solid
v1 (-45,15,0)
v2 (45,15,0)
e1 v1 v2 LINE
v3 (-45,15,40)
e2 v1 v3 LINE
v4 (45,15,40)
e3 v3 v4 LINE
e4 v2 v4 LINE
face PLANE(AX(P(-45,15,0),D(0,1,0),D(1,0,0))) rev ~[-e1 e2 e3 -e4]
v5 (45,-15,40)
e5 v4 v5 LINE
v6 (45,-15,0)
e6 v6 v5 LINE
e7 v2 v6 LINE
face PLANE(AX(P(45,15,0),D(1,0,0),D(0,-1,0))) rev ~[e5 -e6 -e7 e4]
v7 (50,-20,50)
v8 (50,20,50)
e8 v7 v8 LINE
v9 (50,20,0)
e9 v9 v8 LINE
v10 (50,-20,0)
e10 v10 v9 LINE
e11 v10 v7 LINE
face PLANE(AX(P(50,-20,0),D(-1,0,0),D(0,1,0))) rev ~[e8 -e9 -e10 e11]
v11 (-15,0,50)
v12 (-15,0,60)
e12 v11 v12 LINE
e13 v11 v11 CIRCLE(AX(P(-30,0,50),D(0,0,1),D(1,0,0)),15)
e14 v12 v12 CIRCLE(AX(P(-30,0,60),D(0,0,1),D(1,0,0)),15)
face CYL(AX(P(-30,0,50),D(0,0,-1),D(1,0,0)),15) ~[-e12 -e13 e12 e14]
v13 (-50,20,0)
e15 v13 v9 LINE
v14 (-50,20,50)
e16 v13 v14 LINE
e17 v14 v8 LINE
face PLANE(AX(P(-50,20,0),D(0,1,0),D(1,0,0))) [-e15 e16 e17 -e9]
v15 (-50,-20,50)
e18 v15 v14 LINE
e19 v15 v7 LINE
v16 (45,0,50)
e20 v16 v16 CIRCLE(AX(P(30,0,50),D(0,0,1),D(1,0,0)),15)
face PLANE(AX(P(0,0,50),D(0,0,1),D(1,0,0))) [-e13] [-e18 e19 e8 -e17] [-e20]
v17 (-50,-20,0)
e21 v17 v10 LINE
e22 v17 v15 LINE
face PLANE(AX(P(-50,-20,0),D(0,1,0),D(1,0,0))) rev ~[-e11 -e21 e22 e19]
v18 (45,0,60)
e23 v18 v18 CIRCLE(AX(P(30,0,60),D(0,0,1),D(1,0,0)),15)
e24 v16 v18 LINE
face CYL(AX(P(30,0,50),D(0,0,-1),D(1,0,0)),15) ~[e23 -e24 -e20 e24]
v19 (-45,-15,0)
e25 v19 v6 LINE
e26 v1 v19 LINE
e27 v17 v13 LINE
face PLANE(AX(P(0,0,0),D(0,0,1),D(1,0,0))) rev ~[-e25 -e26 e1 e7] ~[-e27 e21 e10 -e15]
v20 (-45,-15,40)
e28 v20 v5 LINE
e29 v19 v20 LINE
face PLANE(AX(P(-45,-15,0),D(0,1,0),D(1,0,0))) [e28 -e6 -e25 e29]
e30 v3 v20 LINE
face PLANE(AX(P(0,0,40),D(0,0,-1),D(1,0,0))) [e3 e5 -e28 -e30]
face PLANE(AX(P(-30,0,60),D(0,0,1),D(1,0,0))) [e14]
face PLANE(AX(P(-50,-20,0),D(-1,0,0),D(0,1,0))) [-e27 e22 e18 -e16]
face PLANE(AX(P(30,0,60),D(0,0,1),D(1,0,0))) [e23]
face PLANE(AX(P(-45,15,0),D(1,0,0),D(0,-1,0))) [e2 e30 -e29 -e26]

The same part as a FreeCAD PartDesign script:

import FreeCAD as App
import Part
import Sketcher

doc = App.newDocument("Part")
body = doc.addObject("PartDesign::Body", "Body")

sketch1 = body.newObject("Sketcher::SketchObject", "Sketch")
sketch1.AttachmentSupport = (doc.getObject("XY_Plane"), [""])
sketch1.MapMode = "FlatFace"
sketch1.addGeometry([
    Part.LineSegment(App.Vector(-50, 20, 0), App.Vector(-50, -20, 0)),
    Part.LineSegment(App.Vector(-50, -20, 0), App.Vector(50, -20, 0)),
    Part.LineSegment(App.Vector(50, -20, 0), App.Vector(50, 20, 0)),
    Part.LineSegment(App.Vector(50, 20, 0), App.Vector(-50, 20, 0)),
], False)
sketch1.addConstraint([
    Sketcher.Constraint("Coincident", 0, 2, 1, 1),
    Sketcher.Constraint("Coincident", 1, 2, 2, 1),
    Sketcher.Constraint("Coincident", 2, 2, 3, 1),
    Sketcher.Constraint("Coincident", 3, 2, 0, 1),
    Sketcher.Constraint("Vertical", 0),
    Sketcher.Constraint("Horizontal", 1),
    Sketcher.Constraint("Vertical", 2),
    Sketcher.Constraint("Horizontal", 3),
    Sketcher.Constraint("Symmetric", 0, 2, 2, 2, -1, 1),
    Sketcher.Constraint("DistanceX", 1, 1, 1, 2, 100.0),
    Sketcher.Constraint("DistanceY", 0, 2, 0, 1, 40.0),
])
pad1 = body.newObject("PartDesign::Pad", "Pad")
pad1.Profile = sketch1
pad1.Length = 50

sketch2 = body.newObject("Sketcher::SketchObject", "Sketch001")
sketch2.AttachmentSupport = (doc.getObject("XY_Plane"), [""])
sketch2.MapMode = "FlatFace"
sketch2.AttachmentOffset = App.Placement(App.Vector(0, 0, 50), App.Rotation())
sketch2.addGeometry([
    Part.Circle(App.Vector(30, 0, 0), App.Vector(0, 0, 1), 15),
    Part.Circle(App.Vector(-30, 0, 0), App.Vector(0, 0, 1), 15),
], False)
sketch2.addConstraint([
    Sketcher.Constraint("Equal", 0, 1),
    Sketcher.Constraint("Symmetric", 0, 3, 1, 3, -1, 1),
    Sketcher.Constraint("PointOnObject", 0, 3, -1),
    Sketcher.Constraint("Diameter", 0, 30.0),
    Sketcher.Constraint("DistanceX", -1, 1, 0, 3, 30.0),
])
pad2 = body.newObject("PartDesign::Pad", "Pad001")
pad2.Profile = sketch2
pad2.Length = 10

sketch3 = body.newObject("Sketcher::SketchObject", "Sketch002")
sketch3.AttachmentSupport = (doc.getObject("XY_Plane"), [""])
sketch3.MapMode = "FlatFace"
sketch3.addGeometry([
    Part.LineSegment(App.Vector(-45, -15, 0), App.Vector(-45, 15, 0)),
    Part.LineSegment(App.Vector(-45, 15, 0), App.Vector(45, 15, 0)),
    Part.LineSegment(App.Vector(45, 15, 0), App.Vector(45, -15, 0)),
    Part.LineSegment(App.Vector(45, -15, 0), App.Vector(-45, -15, 0)),
], False)
sketch3.addConstraint([
    Sketcher.Constraint("Coincident", 0, 2, 1, 1),
    Sketcher.Constraint("Coincident", 1, 2, 2, 1),
    Sketcher.Constraint("Coincident", 2, 2, 3, 1),
    Sketcher.Constraint("Coincident", 3, 2, 0, 1),
    Sketcher.Constraint("Vertical", 0),
    Sketcher.Constraint("Horizontal", 1),
    Sketcher.Constraint("Vertical", 2),
    Sketcher.Constraint("Horizontal", 3),
    Sketcher.Constraint("Symmetric", 0, 2, 2, 2, -1, 1),
    Sketcher.Constraint("DistanceX", 1, 1, 1, 2, 90.0),
    Sketcher.Constraint("DistanceY", 0, 1, 0, 2, 30.0),
])
pocket1 = body.newObject("PartDesign::Pocket", "Pocket")
pocket1.Profile = sketch3
pocket1.Length = 40
pocket1.Reversed = True

doc.recompute()
